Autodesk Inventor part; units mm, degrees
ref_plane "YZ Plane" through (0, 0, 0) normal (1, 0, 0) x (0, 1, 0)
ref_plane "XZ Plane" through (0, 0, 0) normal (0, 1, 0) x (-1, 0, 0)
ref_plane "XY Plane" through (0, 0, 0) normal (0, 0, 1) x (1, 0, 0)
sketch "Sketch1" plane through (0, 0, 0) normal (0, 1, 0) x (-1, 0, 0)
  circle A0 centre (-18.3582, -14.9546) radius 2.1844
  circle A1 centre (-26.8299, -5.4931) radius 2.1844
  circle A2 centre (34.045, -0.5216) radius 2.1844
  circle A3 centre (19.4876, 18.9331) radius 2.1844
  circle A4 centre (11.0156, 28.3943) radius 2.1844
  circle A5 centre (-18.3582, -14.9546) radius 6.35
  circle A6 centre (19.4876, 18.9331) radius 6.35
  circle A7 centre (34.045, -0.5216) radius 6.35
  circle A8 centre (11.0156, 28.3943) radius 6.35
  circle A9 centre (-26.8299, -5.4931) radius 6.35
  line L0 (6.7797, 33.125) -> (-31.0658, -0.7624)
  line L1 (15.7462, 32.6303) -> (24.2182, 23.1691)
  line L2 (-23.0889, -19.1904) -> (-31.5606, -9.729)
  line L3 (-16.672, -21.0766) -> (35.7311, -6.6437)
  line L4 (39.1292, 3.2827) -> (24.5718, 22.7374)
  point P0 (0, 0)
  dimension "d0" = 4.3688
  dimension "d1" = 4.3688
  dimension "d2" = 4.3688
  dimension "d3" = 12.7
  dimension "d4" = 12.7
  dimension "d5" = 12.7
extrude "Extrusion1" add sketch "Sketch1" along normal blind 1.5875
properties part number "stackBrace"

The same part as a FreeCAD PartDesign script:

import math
import FreeCAD as App
import Part
import Sketcher
from FreeCAD import Vector
Q = App.Units.Quantity

doc = App.newDocument("Part")
body = doc.addObject("PartDesign::Body", "Body")

# Sketch on XZ plane
sketch1 = body.newObject("Sketcher::SketchObject", "Sketch")
sketch1.AttachmentSupport = (doc.getObject("XZ_Plane"), [""])
sketch1.MapMode = "FlatFace"
sketch1.addGeometry([
    Part.ArcOfCircle(Part.Circle(Vector(18.3582, -14.9546, 0), Vector(0, 0, 1), 6.35), math.radians(-105.399306), math.radians(-41.840803)),  # 0
    Part.LineSegment(Vector(16.672, -21.0766, 0), Vector(-35.7311, -6.6437, 0)),  # 1
    Part.ArcOfCircle(Part.Circle(Vector(-34.045, -0.5216, 0), Vector(0, 0, 1), 6.35), math.radians(143.193985), math.radians(254.601803)),  # 2
    Part.LineSegment(Vector(-39.1292, 3.2827, 0), Vector(-24.5718, 22.7374, 0)),  # 3
    Part.ArcOfCircle(Part.Circle(Vector(-19.4876, 18.9331, 0), Vector(0, 0, 1), 6.35), math.radians(138.157251), math.radians(143.193985)),  # 4
    Part.LineSegment(Vector(-24.2182, 23.1691, 0), Vector(-15.7462, 32.6303, 0)),  # 5
    Part.ArcOfCircle(Part.Circle(Vector(-11.0156, 28.3943, 0), Vector(0, 0, 1), 6.35), math.radians(48.158525), math.radians(138.157251)),  # 6
    Part.LineSegment(Vector(-6.7797, 33.125, 0), Vector(31.0658, -0.7624, 0)),  # 7
    Part.ArcOfCircle(Part.Circle(Vector(26.8299, -5.4931, 0), Vector(0, 0, 1), 6.35), math.radians(-41.841475), math.radians(48.158525)),  # 8
    Part.LineSegment(Vector(31.5606, -9.729, 0), Vector(23.0889, -19.1904, 0)),  # 9
    Part.Circle(Vector(18.3582, -14.9546, 0), Vector(0, 0, 1), 2.1844),  # 10
    Part.Circle(Vector(26.8299, -5.4931, 0), Vector(0, 0, 1), 2.1844),  # 11
    Part.Circle(Vector(-34.045, -0.5216, 0), Vector(0, 0, 1), 2.1844),  # 12
    Part.Circle(Vector(-11.0156, 28.3943, 0), Vector(0, 0, 1), 2.1844),  # 13
    Part.Circle(Vector(-19.4876, 18.9331, 0), Vector(0, 0, 1), 2.1844),  # 14
], False)
sketch1.addConstraint([
    Sketcher.Constraint("Coincident", 0, 1, 1, 1),
    Sketcher.Constraint("Coincident", 1, 2, 2, 2),
    Sketcher.Constraint("Coincident", 2, 1, 3, 1),
    Sketcher.Constraint("Coincident", 3, 2, 4, 2),
    Sketcher.Constraint("Coincident", 4, 1, 5, 1),
    Sketcher.Constraint("Coincident", 5, 2, 6, 2),
    Sketcher.Constraint("Coincident", 6, 1, 7, 1),
    Sketcher.Constraint("Coincident", 7, 2, 8, 2),
    Sketcher.Constraint("Coincident", 8, 1, 9, 1),
    Sketcher.Constraint("Coincident", 9, 2, 0, 2),
    Sketcher.Constraint("Coincident", 10, 3, 0, 3),
    Sketcher.Constraint("Coincident", 11, 3, 8, 3),
    Sketcher.Constraint("Coincident", 12, 3, 2, 3),
    Sketcher.Constraint("Coincident", 13, 3, 6, 3),
    Sketcher.Constraint("Coincident", 14, 3, 4, 3),
    Sketcher.Constraint("Radius", 0, Q("0.25 in")),
    Sketcher.Constraint("Radius", 2, Q("0.25 in")),
    Sketcher.Constraint("Radius", 4, Q("0.25 in")),
    Sketcher.Constraint("Radius", 6, Q("0.25 in")),
    Sketcher.Constraint("Radius", 8, Q("0.25 in")),
    Sketcher.Constraint("Diameter", 10, Q("0.172 in")),
    Sketcher.Constraint("Diameter", 11, Q("0.172 in")),
    Sketcher.Constraint("Diameter", 12, Q("0.172 in")),
    Sketcher.Constraint("Diameter", 13, Q("0.172 in")),
    Sketcher.Constraint("Diameter", 14, Q("0.172 in")),
    Sketcher.Constraint("Distance", 5, Q("0.5 in")),
    Sketcher.Constraint("Distance", 9, Q("0.5 in")),
    Sketcher.Constraint("Distance", 7, Q("2 in")),
    Sketcher.Constraint("DistanceX", 4, 3, 0, 3, Q("1.49 in")),
    Sketcher.Constraint("DistanceX", -1, 1, 9, 2, Q("0.909 in")),
    Sketcher.Constraint("DistanceY", 3, 2, 4, 1, Q("0.017 in")),
    Sketcher.Constraint("DistanceY", -1, 1, 4, 3, Q("0.7454 in")),
    Sketcher.Constraint("DistanceX", -1, 1, 8, 3, Q("1.0563 in")),
    Sketcher.Constraint("DistanceY", 0, 1, -1, 1, Q("0.8298 in")),
    Sketcher.Constraint("DistanceX", 3, 2, -1, 1, Q("0.9674 in")),
    Sketcher.Constraint("DistanceY", 4, 3, 6, 3, Q("0.3725 in")),
    Sketcher.Constraint("DistanceY", 0, 3, 8, 3, Q("0.3725 in")),
    Sketcher.Constraint("DistanceX", 4, 3, 0, 1, Q("1.4236 in")),
    Sketcher.Constraint("DistanceX", 1, 2, 4, 3, Q("0.6395 in")),
    Sketcher.Constraint("DistanceY", 1, 2, 2, 1, Q("0.3908 in")),
    Sketcher.Constraint("DistanceX", 2, 1, 4, 3, Q("0.7733 in")),
    Sketcher.Constraint("DistanceX", 3, 2, 6, 3, Q("0.5337 in")),
    Sketcher.Constraint("DistanceX", 4, 3, 5, 2, Q("0.1473 in")),
    Sketcher.Constraint("DistanceX", 4, 3, 6, 1, Q("0.5003 in")),
    Sketcher.Constraint("Distance", 1, Q("54.3543 mm")),
])
pad1 = body.newObject("PartDesign::Pad", "Pad")
pad1.Profile = sketch1
pad1.Length = Q("0.0625 in")
pad1.Reversed = True

doc.recompute()
